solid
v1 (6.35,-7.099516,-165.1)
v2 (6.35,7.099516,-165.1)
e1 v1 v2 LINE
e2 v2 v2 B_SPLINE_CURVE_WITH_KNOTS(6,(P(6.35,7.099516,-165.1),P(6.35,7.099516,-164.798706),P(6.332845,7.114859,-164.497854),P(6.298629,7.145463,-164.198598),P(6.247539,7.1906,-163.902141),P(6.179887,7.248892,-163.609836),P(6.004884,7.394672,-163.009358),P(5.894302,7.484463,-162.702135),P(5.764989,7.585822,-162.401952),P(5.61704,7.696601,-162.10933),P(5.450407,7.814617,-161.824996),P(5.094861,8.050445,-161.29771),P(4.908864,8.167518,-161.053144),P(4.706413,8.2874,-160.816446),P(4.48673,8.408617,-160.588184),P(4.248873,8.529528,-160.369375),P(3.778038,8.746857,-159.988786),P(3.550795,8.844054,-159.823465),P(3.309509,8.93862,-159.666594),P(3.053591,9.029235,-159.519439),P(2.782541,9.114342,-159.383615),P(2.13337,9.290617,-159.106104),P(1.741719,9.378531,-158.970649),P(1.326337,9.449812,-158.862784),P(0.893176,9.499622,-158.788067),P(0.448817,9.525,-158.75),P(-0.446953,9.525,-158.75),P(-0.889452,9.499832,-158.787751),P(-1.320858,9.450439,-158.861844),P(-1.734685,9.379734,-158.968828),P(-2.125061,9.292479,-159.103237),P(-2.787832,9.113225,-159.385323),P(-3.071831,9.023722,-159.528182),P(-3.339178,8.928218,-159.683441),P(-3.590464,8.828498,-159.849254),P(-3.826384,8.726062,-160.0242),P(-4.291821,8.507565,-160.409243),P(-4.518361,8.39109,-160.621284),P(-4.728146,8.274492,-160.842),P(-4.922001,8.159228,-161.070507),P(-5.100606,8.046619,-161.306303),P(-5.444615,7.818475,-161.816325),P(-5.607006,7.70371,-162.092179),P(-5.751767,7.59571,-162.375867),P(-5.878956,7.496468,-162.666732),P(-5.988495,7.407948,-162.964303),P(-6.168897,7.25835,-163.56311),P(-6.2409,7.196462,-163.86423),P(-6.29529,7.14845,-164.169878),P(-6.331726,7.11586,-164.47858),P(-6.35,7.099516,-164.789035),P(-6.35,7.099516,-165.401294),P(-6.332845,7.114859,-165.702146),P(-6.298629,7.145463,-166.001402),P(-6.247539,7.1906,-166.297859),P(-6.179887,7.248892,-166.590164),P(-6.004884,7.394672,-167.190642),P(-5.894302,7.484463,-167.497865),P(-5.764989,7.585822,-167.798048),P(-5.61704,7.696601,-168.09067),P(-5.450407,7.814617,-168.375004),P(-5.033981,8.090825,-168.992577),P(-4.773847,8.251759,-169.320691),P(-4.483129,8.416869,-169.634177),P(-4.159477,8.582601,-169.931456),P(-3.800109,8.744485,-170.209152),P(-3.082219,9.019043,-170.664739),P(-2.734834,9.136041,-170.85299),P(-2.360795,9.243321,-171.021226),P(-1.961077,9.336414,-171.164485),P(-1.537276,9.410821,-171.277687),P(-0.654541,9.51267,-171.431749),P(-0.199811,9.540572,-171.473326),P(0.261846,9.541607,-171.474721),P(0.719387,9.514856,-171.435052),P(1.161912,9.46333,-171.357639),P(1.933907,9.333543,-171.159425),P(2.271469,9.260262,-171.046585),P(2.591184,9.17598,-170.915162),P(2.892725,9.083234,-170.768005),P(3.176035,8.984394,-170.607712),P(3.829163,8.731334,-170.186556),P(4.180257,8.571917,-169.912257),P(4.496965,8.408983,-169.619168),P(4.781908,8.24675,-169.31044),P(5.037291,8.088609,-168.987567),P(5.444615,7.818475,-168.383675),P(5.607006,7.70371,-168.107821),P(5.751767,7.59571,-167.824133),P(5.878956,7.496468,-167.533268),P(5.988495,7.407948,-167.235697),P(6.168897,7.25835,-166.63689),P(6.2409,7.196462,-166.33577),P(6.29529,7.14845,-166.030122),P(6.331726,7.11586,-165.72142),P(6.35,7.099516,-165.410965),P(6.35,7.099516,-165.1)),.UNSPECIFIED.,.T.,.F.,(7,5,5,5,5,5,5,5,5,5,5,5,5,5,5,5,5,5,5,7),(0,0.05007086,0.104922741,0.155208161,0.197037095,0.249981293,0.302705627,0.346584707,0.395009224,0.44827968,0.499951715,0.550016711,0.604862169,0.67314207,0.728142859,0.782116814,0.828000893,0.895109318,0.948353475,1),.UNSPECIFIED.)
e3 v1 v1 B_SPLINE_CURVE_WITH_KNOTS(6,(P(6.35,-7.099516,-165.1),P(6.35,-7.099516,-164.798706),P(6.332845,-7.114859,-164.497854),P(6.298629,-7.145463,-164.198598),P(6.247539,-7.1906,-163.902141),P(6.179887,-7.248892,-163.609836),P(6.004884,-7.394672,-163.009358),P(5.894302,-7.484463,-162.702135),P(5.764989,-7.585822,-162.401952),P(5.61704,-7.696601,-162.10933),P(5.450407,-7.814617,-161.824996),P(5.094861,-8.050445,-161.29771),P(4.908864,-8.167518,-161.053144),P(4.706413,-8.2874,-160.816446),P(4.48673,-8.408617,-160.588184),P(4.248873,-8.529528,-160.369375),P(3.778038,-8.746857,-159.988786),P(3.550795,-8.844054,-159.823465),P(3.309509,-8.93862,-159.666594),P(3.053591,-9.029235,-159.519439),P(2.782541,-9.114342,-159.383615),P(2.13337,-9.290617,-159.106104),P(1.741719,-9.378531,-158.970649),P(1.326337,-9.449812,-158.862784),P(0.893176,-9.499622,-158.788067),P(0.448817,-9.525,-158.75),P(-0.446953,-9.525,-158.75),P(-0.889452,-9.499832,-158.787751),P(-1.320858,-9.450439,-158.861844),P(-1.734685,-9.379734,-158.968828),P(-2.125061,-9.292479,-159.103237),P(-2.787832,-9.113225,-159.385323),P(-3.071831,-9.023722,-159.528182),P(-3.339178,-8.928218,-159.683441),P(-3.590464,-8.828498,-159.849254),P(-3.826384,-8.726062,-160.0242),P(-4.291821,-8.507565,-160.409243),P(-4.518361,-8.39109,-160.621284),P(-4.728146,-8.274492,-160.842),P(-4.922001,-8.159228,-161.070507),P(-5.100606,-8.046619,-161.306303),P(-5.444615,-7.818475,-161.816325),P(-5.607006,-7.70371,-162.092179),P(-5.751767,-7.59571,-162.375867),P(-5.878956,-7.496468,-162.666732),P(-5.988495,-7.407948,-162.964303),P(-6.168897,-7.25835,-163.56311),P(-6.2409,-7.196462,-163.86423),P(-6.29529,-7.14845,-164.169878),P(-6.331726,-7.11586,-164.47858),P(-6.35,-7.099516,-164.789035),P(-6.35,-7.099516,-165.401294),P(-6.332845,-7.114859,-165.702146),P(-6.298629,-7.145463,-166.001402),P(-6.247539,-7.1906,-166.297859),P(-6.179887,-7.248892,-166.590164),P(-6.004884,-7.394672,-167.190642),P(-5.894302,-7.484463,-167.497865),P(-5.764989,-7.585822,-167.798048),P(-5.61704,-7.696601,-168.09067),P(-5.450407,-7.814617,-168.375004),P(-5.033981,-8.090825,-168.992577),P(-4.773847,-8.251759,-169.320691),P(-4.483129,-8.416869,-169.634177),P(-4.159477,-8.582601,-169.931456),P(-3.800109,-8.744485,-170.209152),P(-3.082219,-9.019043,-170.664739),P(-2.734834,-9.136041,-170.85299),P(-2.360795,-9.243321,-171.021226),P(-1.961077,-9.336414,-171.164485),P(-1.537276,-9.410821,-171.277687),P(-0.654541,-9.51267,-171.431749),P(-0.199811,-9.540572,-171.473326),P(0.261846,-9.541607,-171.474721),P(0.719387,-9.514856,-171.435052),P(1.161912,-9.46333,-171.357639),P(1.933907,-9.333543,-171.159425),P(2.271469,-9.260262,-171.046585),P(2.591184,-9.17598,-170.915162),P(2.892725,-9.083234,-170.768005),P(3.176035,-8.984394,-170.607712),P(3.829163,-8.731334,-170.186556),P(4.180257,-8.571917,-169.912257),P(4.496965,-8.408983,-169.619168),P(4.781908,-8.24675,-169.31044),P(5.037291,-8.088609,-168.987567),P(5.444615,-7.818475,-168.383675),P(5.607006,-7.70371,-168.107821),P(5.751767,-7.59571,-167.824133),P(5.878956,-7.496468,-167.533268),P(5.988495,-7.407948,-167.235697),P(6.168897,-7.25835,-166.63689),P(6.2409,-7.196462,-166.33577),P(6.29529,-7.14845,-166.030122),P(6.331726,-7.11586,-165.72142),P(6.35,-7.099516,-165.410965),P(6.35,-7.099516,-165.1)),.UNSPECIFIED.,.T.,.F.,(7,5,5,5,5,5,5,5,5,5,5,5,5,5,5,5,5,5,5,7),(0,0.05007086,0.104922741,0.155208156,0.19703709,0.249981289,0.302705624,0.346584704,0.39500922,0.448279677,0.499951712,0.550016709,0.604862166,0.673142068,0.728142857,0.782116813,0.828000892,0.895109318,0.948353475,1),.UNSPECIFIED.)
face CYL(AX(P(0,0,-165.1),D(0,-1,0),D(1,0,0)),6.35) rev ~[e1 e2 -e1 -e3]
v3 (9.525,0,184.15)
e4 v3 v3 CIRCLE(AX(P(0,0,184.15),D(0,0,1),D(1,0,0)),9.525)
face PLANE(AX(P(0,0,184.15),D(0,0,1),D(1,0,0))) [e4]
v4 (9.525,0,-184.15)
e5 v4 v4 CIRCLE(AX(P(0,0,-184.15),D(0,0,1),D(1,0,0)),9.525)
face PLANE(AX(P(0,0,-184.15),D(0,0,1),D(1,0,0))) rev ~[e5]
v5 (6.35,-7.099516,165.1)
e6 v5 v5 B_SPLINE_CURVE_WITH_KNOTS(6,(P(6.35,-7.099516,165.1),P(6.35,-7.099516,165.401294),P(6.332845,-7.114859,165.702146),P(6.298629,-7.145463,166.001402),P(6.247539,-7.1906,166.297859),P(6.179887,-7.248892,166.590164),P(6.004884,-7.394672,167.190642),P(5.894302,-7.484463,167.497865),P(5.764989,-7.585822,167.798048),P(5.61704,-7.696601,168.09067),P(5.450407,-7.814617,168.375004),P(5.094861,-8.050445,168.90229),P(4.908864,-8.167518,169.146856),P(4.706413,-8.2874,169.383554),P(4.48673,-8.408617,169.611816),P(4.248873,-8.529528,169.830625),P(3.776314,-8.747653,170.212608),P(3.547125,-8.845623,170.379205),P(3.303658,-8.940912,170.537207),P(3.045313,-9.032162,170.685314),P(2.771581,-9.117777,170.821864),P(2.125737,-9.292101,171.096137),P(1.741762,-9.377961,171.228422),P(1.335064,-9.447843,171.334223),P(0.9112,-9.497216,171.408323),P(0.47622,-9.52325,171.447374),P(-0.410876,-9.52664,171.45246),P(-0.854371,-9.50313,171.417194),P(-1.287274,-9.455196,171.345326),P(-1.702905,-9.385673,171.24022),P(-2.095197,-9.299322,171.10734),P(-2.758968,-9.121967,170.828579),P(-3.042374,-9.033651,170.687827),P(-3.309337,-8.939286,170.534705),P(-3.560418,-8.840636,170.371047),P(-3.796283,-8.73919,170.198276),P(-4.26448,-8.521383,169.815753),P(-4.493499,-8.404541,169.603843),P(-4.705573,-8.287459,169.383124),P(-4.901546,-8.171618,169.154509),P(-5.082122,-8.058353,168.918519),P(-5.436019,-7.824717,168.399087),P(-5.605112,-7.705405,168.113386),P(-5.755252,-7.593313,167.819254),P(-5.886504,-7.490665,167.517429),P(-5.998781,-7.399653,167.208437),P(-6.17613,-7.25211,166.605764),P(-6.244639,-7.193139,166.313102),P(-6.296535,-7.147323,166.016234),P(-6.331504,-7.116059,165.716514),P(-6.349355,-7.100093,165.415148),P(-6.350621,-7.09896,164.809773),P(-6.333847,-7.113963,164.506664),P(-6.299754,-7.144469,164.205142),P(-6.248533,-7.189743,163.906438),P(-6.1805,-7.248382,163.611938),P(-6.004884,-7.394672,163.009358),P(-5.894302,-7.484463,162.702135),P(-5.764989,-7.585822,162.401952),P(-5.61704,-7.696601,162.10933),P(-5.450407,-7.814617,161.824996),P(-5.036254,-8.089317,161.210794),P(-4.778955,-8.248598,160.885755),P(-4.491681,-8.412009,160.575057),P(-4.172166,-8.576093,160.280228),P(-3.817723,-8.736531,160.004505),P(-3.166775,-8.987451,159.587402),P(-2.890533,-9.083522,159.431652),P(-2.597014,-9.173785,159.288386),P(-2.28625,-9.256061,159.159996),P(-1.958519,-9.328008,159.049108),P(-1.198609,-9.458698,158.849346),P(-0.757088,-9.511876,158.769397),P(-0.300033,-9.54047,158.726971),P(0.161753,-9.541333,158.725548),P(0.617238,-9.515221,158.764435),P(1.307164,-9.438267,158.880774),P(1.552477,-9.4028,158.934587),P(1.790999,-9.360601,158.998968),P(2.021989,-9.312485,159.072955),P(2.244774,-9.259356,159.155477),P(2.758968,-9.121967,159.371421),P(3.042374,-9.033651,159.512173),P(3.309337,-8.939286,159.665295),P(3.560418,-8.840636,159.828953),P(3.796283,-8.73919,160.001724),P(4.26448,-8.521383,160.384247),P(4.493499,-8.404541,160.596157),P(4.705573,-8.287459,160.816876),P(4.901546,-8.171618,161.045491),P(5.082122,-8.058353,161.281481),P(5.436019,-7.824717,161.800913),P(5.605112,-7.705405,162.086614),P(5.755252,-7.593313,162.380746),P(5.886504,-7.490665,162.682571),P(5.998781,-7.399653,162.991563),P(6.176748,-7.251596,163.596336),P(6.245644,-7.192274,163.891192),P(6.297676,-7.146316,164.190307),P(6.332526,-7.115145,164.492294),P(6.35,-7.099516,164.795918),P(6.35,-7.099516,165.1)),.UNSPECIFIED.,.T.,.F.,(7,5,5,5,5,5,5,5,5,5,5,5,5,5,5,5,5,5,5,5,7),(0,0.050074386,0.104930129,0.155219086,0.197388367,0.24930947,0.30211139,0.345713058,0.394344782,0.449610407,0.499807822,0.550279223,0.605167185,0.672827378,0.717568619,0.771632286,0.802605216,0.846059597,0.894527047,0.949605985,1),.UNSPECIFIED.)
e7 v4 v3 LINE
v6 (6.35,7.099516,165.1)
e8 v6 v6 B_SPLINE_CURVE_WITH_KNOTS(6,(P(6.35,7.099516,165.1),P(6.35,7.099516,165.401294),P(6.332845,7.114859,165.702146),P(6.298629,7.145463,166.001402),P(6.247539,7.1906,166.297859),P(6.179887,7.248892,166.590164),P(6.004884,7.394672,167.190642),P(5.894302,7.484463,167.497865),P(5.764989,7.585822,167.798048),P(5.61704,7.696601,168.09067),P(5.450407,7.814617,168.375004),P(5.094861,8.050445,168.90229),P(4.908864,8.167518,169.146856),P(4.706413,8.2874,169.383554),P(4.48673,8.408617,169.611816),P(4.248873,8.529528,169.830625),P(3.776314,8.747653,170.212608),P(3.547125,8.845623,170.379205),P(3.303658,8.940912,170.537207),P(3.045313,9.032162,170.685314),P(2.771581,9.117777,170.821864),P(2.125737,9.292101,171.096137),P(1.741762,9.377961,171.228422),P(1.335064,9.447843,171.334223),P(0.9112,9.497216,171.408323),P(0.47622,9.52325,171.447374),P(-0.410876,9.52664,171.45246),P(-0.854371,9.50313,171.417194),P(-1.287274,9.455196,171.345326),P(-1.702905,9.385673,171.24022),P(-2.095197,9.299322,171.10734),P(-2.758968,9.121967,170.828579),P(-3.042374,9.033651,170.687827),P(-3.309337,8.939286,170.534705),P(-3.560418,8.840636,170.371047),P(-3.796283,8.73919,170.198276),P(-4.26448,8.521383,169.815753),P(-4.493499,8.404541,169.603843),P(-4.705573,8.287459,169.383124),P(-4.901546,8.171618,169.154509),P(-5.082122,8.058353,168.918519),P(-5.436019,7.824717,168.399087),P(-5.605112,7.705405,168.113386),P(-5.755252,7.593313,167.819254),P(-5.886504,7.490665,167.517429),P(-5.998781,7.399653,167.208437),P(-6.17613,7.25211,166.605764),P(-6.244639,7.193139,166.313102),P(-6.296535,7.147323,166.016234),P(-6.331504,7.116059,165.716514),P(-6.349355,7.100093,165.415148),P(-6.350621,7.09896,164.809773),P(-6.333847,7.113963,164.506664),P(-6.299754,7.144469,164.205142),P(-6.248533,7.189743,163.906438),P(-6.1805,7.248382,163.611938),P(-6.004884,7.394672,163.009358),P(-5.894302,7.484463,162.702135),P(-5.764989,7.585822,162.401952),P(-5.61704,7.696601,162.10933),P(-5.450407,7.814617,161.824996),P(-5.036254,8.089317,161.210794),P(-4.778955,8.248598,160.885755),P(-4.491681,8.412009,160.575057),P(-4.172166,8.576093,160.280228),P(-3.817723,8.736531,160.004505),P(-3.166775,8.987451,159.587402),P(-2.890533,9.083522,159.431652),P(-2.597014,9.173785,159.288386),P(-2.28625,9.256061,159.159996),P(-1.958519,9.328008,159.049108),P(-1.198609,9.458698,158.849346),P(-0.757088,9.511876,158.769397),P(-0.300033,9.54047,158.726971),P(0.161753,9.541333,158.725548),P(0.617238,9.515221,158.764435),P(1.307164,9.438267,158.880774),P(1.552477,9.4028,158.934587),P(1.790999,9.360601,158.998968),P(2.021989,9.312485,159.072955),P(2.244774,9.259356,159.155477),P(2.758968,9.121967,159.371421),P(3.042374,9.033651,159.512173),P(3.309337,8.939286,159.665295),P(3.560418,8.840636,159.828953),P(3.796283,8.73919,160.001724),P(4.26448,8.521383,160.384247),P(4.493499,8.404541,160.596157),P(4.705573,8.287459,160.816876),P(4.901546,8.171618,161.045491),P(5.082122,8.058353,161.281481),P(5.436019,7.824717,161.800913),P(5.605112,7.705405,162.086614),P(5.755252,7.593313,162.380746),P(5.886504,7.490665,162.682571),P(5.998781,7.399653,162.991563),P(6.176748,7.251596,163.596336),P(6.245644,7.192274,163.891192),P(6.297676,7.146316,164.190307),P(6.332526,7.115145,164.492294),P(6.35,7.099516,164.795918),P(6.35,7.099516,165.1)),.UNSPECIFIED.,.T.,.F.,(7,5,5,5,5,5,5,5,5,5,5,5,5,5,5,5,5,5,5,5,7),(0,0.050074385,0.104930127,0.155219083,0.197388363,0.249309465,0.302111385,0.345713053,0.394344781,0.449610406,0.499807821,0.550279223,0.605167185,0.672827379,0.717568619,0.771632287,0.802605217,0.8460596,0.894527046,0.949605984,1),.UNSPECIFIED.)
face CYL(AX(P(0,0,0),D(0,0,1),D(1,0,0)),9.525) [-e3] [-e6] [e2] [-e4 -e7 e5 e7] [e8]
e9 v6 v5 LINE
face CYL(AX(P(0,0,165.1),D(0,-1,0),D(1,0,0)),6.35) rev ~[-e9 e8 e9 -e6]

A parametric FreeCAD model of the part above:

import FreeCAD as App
import Part
import Sketcher
from FreeCAD import Vector
Q = App.Units.Quantity

doc = App.newDocument("Part")
body = doc.addObject("PartDesign::Body", "Body")

sketch1 = doc.addObject("Sketcher::SketchObject", "Sketch")
body.addObject(sketch1)
sketch1.AttachmentSupport = (doc.XY_Plane, [""])
sketch1.MapMode = "FlatFace"
sketch1.addGeometry(Part.Circle(Vector(0, 0, 0), Vector(0, 0, 1), 9.525), False)
sketch1.addConstraint([
    Sketcher.Constraint("Coincident", 0, 3, -1, 1),
    Sketcher.Constraint("Diameter", 0, Q("0.75 in")),
])
pad1 = doc.addObject("PartDesign::Pad", "Pad")
body.addObject(pad1)
pad1.Profile = sketch1
pad1.Length = Q("14.5 in")
pad1.Midplane = True

sketch2 = doc.addObject("Sketcher::SketchObject", "Sketch001")
body.addObject(sketch2)
sketch2.AttachmentSupport = (doc.XZ_Plane, [""])
sketch2.MapMode = "FlatFace"
sketch2.addGeometry([
    Part.Circle(Vector(0, -165.1, 0), Vector(0, 0, 1), 6.35),
    Part.Circle(Vector(0, 165.1, 0), Vector(0, 0, 1), 6.35),
], False)
sketch2.addConstraint([
    Sketcher.Constraint("Equal", 0, 1),
    Sketcher.Constraint("Symmetric", 0, 3, 1, 3, -1, 1),
    Sketcher.Constraint("PointOnObject", 0, 3, -2),
    Sketcher.Constraint("Diameter", 0, Q("0.5 in")),
    Sketcher.Constraint("DistanceY", 0, 3, 1, 3, Q("13 in")),
])
pocket1 = doc.addObject("PartDesign::Pocket", "Pocket")
body.addObject(pocket1)
pocket1.Profile = sketch2
pocket1.Length = Q("1 in")
pocket1.Midplane = True

doc.recompute()
